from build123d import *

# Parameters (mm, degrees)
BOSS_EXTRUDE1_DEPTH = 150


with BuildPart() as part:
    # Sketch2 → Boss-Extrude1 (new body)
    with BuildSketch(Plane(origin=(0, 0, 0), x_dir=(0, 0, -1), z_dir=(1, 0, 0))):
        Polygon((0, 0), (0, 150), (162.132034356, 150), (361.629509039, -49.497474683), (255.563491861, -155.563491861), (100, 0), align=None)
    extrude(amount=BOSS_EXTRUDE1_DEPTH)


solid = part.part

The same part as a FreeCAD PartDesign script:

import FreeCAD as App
import Part
import Sketcher

V = App.Vector
Q = App.Units.Quantity


def add_polygon(sketch, points):
    """Adds a closed chain of lines whose ends are joined by coincident constraints."""
    first, n = sketch.GeometryCount, len(points)
    for a, b in zip(points, points[1:] + points[:1]):
        sketch.addGeometry(Part.LineSegment(App.Vector(*a, 0), App.Vector(*b, 0)), False)
    for i in range(n):
        sketch.addConstraint(Sketcher.Constraint("Coincident", first + i, 2, first + (i + 1) % n, 1))

doc = App.newDocument("Part")
body = doc.addObject("PartDesign::Body", "Body")

# Sketch on YZ plane
sketch1 = body.newObject("Sketcher::SketchObject", "Sketch")
sketch1.AttachmentSupport = (doc.getObject("YZ_Plane"), [""])
sketch1.MapMode = "FlatFace"
add_polygon(sketch1, [(150, 0), (0, 0), (0, -100), (-156, -256), (-49, -362), (150, -162)])  # lines 0-5
sketch1.addConstraint([
    Sketcher.Constraint("Horizontal", 0),
    Sketcher.Constraint("Vertical", 1),
    Sketcher.Constraint("Vertical", 5),
    Sketcher.Constraint("Coincident", 0, 2, -1, 1),
    Sketcher.Constraint("Perpendicular", 2, 3),
    Sketcher.Constraint("Perpendicular", 3, 4),
    Sketcher.Constraint("DistanceX", 0, 2, 0, 1, 150.0),
    Sketcher.Constraint("DistanceY", 1, 2, 1, 1, 100.0),
    Sketcher.Constraint("Angle", 2, Q("-135 deg")),
    Sketcher.Constraint("Distance", 2, 220.0),
    Sketcher.Constraint("Distance", 3, 150.0),
])
pad1 = body.newObject("PartDesign::Pad", "Pad")
pad1.Profile = sketch1
pad1.Length = 150

doc.recompute()
